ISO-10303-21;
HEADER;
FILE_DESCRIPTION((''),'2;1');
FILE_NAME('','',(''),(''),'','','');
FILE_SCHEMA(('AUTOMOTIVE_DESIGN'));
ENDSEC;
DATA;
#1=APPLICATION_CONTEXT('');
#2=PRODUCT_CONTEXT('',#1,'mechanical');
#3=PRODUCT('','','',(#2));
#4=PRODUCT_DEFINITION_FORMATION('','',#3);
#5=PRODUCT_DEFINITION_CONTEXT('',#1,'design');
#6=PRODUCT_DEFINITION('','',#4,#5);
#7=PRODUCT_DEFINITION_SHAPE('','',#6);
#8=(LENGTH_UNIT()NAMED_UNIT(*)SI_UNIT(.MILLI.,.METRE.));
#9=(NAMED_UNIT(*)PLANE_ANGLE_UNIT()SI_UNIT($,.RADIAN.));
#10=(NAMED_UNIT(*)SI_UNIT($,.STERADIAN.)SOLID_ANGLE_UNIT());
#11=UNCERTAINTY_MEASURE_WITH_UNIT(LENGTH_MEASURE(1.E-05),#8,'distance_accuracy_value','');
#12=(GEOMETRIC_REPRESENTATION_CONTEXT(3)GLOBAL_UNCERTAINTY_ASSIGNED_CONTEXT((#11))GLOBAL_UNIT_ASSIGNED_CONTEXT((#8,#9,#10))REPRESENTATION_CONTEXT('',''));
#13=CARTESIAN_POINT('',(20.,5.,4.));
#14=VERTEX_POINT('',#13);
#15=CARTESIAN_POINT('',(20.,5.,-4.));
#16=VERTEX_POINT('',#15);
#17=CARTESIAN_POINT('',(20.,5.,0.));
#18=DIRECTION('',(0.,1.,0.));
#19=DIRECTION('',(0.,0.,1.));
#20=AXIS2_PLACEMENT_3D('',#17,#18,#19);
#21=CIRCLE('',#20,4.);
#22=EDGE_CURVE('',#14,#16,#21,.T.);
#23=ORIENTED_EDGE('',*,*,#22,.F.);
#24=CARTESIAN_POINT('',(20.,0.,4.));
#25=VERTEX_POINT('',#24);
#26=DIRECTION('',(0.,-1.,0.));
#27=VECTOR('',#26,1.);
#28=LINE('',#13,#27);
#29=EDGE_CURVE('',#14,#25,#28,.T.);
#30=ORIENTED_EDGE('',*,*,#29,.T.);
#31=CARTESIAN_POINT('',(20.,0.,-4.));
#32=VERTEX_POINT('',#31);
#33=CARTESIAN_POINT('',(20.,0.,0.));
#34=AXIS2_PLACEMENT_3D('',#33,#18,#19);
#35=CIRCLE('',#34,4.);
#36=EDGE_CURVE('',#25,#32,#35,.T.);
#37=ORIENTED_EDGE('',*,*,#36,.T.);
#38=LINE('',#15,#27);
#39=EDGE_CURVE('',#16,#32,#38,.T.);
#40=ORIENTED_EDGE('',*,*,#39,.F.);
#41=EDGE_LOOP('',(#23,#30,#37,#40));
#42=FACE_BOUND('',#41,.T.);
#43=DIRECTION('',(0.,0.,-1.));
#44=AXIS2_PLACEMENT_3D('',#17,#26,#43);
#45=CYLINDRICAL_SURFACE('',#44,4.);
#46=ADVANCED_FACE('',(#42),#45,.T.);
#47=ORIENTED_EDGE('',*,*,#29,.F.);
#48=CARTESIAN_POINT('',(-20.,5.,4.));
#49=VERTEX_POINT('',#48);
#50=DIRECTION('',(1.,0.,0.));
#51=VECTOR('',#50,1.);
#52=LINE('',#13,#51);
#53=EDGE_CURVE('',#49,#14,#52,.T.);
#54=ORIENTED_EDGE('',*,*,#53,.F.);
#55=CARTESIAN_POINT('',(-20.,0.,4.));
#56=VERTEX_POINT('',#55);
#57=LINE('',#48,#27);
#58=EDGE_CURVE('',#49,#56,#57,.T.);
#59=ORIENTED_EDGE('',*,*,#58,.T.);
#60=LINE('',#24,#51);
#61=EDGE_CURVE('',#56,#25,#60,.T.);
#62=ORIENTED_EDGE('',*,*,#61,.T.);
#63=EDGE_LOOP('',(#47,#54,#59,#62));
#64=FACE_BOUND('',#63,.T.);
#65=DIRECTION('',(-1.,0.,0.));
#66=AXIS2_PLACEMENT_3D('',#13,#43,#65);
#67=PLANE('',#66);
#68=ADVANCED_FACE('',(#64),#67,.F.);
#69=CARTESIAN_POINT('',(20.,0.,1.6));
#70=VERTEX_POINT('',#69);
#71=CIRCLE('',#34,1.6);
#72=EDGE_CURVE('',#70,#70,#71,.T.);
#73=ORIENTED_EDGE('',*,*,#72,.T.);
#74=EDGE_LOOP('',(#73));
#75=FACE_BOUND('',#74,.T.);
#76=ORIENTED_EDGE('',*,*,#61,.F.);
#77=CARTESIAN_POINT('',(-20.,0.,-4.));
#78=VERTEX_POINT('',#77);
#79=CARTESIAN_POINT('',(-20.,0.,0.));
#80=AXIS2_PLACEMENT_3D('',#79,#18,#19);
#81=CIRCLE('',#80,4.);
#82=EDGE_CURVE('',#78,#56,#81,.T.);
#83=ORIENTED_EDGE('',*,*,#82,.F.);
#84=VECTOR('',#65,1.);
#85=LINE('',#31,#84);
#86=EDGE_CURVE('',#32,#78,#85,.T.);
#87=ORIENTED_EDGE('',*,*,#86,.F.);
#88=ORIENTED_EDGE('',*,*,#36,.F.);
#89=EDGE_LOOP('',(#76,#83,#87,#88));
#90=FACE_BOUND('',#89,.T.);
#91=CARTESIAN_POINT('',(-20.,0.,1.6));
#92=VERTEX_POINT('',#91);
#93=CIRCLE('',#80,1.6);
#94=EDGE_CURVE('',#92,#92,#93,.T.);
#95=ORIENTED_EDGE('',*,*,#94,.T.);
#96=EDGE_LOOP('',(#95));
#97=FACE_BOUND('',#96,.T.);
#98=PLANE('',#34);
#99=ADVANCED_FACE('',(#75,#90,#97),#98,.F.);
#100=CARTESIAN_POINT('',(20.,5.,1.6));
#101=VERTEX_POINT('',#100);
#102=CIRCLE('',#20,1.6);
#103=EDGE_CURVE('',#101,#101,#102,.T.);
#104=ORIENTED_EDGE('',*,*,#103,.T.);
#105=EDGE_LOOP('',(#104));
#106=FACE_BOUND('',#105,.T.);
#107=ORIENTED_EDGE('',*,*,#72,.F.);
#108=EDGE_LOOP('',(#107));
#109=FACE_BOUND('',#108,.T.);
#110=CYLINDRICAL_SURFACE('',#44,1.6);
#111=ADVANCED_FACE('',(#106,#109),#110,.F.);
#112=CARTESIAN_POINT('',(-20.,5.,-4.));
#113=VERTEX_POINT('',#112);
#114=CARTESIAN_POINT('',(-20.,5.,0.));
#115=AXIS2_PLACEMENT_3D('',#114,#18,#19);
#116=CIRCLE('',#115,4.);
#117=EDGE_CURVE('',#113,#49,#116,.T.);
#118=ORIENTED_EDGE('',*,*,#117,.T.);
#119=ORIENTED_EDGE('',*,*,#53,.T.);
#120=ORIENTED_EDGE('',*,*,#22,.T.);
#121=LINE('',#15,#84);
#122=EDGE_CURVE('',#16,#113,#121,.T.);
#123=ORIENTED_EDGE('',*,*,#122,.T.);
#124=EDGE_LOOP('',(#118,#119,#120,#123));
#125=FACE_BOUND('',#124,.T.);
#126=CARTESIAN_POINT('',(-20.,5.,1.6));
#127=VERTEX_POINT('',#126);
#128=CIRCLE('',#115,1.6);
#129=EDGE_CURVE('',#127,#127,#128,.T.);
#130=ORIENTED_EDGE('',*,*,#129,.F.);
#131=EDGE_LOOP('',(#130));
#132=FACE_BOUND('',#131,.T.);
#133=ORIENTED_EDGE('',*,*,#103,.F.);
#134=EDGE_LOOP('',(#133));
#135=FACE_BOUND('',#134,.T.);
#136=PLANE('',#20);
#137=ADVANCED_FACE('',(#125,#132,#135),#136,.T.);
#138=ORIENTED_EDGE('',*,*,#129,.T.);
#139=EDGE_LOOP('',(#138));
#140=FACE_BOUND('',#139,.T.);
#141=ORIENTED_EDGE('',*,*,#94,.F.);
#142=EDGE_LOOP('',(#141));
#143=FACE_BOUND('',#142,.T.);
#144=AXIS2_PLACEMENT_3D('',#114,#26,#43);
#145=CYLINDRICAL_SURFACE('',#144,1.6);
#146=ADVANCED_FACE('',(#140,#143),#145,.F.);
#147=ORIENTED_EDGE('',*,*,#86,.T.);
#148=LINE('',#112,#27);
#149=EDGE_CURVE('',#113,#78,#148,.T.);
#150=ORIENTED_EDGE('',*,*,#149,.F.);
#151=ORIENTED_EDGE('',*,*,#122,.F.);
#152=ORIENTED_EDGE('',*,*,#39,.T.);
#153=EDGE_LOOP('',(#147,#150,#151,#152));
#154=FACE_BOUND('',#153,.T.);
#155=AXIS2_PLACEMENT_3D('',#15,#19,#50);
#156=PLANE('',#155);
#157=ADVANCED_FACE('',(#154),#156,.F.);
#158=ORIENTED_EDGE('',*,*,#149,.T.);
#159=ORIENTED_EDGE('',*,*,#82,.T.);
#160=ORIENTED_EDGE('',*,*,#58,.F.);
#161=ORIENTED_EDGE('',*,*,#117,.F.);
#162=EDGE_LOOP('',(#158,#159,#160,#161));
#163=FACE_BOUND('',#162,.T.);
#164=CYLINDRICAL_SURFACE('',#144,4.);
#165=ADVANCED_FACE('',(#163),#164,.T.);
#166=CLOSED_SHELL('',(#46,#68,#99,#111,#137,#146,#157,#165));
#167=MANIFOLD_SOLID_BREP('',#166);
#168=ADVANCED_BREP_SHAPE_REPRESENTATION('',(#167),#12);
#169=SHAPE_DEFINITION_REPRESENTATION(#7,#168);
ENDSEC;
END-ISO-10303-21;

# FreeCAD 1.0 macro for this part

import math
import FreeCAD as App
import Part
import Sketcher

V = App.Vector
Q = App.Units.Quantity

doc = App.newDocument("Part")
params = doc.addObject("Spreadsheet::Sheet", "Params")
for row, (alias, value) in enumerate([
    ("sketch1_radius", "4 mm"),
    ("sketch1_diameter", "3.2 mm"),
    ("sketch1_width", "40 mm"),
    ("pad1_length", "5 mm"),
], start=1):
    params.set(f"A{row}", alias)
    params.set(f"B{row}", "=" + value)
    params.setAlias(f"B{row}", alias)

body = doc.addObject("PartDesign::Body", "Body")

sketch1 = body.newObject("Sketcher::SketchObject", "Sketch")
sketch1.AttachmentSupport = (doc.getObject("XZ_Plane"), [""])
sketch1.MapMode = "FlatFace"
sketch1.addGeometry([
    Part.LineSegment(V(-20, 4, 0), V(20, 4, 0)),
    Part.ArcOfCircle(Part.Circle(V(20, 0, 0), V(0, 0, 1), 4), math.radians(-90), math.radians(90)),
    Part.LineSegment(V(20, -4, 0), V(-20, -4, 0)),
    Part.ArcOfCircle(Part.Circle(V(-20, 0, 0), V(0, 0, 1), 4), math.radians(90), math.radians(270)),
    Part.Circle(V(20, 0, 0), V(0, 0, 1), 1.6),
    Part.Circle(V(-20, 0, 0), V(0, 0, 1), 1.6),
], False)
sketch1.addConstraint([
    Sketcher.Constraint("Tangent", 0, 2, 1, 2),
    Sketcher.Constraint("Tangent", 1, 1, 2, 1),
    Sketcher.Constraint("Tangent", 2, 2, 3, 2),
    Sketcher.Constraint("Tangent", 3, 1, 0, 1),
    Sketcher.Constraint("Horizontal", 0),
    Sketcher.Constraint("Horizontal", 2),
    Sketcher.Constraint("Coincident", 4, 3, 1, 3),
    Sketcher.Constraint("Coincident", 5, 3, 3, 3),
    Sketcher.Constraint("Equal", 4, 5),
    Sketcher.Constraint("Symmetric", 1, 3, 3, 3, -1, 1),
    Sketcher.Constraint("Radius", 1, Q("4 mm")),
    Sketcher.Constraint("Diameter", 4, Q("3.2 mm")),
    Sketcher.Constraint("DistanceX", 0, 1, 0, 2, Q("40 mm")),
])
sketch1.setExpression("Constraints[10]", "Params.sketch1_radius")
sketch1.setExpression("Constraints[11]", "Params.sketch1_diameter")
sketch1.setExpression("Constraints[12]", "Params.sketch1_width")
pad1 = body.newObject("PartDesign::Pad", "Pad")
pad1.Profile = sketch1
pad1.setExpression("Length", "Params.pad1_length")
pad1.Reversed = True

doc.recompute()
